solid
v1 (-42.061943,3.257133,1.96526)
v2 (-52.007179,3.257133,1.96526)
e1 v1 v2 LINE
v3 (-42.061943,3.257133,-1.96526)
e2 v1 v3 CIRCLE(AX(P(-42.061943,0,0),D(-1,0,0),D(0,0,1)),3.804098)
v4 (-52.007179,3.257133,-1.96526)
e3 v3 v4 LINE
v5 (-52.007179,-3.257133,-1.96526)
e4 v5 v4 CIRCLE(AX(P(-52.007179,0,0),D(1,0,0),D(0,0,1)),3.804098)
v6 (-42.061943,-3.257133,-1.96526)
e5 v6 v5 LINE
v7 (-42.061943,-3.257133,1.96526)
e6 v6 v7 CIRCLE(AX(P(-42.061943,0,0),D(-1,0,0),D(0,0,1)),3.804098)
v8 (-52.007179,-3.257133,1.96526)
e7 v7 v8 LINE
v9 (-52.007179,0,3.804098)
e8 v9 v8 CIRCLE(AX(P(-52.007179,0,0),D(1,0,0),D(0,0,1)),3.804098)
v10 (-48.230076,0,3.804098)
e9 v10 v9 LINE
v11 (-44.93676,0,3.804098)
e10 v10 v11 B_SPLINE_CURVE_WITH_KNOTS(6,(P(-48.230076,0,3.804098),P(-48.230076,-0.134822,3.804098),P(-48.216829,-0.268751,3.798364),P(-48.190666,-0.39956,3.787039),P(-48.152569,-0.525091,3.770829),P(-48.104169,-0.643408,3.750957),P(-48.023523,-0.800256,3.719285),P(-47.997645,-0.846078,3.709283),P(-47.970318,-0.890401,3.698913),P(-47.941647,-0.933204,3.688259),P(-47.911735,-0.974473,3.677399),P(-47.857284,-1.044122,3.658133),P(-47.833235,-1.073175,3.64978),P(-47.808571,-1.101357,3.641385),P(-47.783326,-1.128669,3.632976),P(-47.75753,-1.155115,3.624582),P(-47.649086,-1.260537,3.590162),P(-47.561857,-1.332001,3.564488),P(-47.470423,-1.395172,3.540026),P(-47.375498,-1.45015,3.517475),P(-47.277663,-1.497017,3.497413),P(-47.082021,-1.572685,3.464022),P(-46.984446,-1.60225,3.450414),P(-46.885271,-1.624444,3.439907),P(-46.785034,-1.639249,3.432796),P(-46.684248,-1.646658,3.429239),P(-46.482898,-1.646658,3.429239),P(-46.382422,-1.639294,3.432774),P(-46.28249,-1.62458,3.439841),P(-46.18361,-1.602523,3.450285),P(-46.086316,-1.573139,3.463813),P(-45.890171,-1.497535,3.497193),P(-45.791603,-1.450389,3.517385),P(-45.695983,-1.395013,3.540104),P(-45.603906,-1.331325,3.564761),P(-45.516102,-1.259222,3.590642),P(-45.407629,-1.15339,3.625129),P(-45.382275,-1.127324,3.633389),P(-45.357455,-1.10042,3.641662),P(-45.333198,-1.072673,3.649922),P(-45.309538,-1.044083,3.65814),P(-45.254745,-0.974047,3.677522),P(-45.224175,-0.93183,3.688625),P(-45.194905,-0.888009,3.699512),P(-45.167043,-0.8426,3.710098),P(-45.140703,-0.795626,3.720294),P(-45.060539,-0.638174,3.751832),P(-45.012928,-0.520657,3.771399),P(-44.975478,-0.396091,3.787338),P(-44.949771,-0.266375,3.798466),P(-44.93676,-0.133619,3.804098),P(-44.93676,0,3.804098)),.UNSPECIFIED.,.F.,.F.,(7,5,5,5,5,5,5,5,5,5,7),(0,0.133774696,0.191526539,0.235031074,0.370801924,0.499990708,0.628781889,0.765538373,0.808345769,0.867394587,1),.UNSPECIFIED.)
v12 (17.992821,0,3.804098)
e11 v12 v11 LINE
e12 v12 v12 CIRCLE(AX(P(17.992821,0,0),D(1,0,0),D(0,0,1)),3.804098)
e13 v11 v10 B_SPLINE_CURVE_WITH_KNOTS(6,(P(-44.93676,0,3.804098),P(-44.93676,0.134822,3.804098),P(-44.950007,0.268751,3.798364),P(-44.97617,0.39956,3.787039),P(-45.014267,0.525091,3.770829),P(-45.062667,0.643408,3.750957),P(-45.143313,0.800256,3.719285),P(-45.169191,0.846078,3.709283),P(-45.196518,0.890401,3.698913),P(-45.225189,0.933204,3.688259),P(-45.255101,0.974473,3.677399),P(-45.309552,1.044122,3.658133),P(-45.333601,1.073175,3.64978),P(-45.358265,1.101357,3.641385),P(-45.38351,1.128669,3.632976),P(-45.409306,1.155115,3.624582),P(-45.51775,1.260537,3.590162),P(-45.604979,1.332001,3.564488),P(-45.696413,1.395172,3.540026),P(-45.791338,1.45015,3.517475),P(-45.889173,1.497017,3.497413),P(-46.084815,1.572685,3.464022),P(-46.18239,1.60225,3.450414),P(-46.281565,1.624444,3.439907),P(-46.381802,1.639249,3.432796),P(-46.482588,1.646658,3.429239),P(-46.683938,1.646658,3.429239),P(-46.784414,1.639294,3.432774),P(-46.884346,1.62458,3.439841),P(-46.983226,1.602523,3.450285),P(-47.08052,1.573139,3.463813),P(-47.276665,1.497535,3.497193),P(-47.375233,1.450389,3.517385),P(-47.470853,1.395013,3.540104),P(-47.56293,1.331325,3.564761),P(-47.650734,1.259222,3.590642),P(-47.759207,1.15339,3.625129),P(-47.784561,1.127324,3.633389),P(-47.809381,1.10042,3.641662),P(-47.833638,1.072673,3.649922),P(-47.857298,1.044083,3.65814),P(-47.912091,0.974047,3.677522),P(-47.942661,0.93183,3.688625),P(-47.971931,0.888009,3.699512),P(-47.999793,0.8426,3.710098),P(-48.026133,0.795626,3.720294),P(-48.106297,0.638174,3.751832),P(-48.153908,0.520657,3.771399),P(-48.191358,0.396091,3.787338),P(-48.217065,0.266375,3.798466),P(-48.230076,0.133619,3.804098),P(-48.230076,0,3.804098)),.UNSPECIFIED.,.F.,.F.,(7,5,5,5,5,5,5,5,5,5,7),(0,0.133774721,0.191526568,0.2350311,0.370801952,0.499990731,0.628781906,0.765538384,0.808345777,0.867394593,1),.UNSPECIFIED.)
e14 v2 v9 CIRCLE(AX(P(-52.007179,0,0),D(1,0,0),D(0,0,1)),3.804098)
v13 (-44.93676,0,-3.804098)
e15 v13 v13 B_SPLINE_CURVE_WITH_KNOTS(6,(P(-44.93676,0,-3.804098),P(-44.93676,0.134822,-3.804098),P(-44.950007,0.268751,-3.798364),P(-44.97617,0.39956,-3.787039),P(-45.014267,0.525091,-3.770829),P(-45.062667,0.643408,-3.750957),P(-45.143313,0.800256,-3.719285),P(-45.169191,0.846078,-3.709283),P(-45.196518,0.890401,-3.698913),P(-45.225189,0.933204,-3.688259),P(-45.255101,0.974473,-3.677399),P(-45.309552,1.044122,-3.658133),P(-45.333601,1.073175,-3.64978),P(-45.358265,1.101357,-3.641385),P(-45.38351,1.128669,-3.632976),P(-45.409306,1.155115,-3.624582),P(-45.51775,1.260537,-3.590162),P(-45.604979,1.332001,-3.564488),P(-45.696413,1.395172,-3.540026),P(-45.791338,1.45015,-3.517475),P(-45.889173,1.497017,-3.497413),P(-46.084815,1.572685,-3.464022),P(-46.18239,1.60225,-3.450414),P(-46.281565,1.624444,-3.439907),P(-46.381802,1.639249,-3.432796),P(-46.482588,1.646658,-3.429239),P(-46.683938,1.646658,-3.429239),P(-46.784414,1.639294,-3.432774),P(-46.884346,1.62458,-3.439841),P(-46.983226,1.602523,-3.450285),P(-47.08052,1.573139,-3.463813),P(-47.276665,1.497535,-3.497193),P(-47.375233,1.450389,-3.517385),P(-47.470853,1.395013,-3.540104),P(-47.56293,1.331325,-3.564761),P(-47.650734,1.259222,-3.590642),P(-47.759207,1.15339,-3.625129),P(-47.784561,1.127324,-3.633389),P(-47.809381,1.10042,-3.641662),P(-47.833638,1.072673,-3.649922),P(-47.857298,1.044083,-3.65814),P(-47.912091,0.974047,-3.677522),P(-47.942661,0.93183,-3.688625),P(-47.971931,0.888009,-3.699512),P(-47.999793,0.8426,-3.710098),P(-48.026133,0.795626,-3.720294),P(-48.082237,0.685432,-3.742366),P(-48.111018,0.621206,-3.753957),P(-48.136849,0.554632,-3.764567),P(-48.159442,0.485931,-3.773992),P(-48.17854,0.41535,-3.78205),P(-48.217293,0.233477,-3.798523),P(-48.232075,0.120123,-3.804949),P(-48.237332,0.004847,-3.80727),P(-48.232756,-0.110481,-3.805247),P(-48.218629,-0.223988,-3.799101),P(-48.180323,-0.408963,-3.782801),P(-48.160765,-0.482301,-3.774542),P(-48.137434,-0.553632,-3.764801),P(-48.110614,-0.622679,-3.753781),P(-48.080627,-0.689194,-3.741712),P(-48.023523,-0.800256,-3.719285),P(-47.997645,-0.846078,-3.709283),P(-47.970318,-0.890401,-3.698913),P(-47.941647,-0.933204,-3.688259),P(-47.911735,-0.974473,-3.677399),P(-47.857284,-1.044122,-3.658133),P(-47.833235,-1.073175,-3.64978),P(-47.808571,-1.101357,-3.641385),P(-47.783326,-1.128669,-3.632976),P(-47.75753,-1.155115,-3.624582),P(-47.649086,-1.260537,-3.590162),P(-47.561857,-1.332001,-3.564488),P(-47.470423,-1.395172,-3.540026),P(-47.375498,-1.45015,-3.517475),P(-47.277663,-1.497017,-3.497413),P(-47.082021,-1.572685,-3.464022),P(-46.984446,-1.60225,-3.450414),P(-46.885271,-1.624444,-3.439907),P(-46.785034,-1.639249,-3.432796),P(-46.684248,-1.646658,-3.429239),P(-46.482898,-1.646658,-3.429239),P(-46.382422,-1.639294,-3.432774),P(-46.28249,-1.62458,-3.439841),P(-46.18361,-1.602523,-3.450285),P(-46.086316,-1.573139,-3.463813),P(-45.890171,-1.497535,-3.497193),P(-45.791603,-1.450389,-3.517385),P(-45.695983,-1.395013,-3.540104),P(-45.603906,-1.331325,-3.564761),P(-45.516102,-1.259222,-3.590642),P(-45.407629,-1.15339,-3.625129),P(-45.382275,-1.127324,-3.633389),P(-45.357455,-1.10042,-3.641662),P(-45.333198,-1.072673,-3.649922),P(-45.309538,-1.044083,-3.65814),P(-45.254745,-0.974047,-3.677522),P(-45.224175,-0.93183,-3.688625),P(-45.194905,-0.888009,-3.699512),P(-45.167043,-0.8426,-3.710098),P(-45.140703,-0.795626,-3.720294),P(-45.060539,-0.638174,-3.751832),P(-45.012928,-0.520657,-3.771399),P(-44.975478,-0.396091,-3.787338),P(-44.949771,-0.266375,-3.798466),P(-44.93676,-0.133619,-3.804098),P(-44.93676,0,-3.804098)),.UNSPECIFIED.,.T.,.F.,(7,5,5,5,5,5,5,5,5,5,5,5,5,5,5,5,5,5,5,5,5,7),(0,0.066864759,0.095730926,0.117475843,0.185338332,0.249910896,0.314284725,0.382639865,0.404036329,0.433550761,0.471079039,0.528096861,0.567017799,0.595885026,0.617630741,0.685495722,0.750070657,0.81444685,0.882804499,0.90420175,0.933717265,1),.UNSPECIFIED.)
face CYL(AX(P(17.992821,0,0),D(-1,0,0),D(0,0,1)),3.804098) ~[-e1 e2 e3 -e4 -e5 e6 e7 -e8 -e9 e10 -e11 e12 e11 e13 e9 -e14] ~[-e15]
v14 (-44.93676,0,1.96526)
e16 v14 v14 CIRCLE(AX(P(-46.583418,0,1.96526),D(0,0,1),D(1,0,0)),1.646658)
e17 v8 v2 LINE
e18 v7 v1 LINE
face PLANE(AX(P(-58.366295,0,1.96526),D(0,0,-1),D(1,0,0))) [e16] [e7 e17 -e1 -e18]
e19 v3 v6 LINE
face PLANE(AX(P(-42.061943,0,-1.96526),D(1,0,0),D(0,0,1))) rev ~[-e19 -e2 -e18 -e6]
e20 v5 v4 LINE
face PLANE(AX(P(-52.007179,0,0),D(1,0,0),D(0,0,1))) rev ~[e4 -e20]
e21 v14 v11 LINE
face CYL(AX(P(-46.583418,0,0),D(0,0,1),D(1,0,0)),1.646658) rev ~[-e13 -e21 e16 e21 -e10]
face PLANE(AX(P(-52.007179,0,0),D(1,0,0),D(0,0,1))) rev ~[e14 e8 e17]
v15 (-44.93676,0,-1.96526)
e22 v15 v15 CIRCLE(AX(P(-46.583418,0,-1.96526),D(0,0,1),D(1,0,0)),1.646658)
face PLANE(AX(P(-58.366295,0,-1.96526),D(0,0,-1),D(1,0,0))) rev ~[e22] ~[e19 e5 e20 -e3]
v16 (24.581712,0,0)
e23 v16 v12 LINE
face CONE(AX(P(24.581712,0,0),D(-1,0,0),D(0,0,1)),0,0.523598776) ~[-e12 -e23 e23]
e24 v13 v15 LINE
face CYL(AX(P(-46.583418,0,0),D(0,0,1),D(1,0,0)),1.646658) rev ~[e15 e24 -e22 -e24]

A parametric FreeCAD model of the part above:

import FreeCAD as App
import Part
import Sketcher

V = App.Vector
Q = App.Units.Quantity


def add_polygon(sketch, points):
    """Adds a closed chain of lines whose ends are joined by coincident constraints."""
    first, n = sketch.GeometryCount, len(points)
    for a, b in zip(points, points[1:] + points[:1]):
        sketch.addGeometry(Part.LineSegment(App.Vector(*a, 0), App.Vector(*b, 0)), False)
    for i in range(n):
        sketch.addConstraint(Sketcher.Constraint("Coincident", first + i, 2, first + (i + 1) % n, 1))

doc = App.newDocument("Part")
body = doc.addObject("PartDesign::Body", "Body")

# Sketch on XZ plane
sketch1 = body.newObject("Sketcher::SketchObject", "Sketch")
sketch1.AttachmentSupport = (doc.getObject("XZ_Plane"), [""])
sketch1.MapMode = "FlatFace"
add_polygon(sketch1, [(-52.007179, 3.804098), (-52.007179, 0), (24.581712, 0), (17.992821, 3.804098)])  # lines 0-3
sketch1.addConstraint([
    Sketcher.Constraint("Vertical", 0),
    Sketcher.Constraint("Horizontal", 1),
    Sketcher.Constraint("Horizontal", 3),
    Sketcher.Constraint("PointOnObject", 0, 2, -1),
    Sketcher.Constraint("DistanceX", 3, 2, 3, 1, 70.0),
    Sketcher.Constraint("Angle", 2, Q("150 deg")),
    Sketcher.Constraint("DistanceY", 0, 2, 0, 1, 3.804098),
    Sketcher.Constraint("DistanceX", 0, 2, -1, 1, 52.007179),
])
revolution = body.newObject("PartDesign::Revolution", "Revolution")
revolution.Profile = sketch1
revolution.ReferenceAxis = (sketch1, ["H_Axis"])
revolution.Angle = 360

# Sketch on XZ plane
sketch2 = body.newObject("Sketcher::SketchObject", "Sketch001")
sketch2.AttachmentSupport = (doc.getObject("XZ_Plane"), [""])
sketch2.MapMode = "FlatFace"
add_polygon(sketch2, [(-58.366295, 1.96526), (-58.366295, -1.96526), (-42.061943, -1.96526), (-42.061943, 1.96526)])  # lines 0-3
sketch2.addConstraint([
    Sketcher.Constraint("Vertical", 0),
    Sketcher.Constraint("Horizontal", 1),
    Sketcher.Constraint("Vertical", 2),
    Sketcher.Constraint("Horizontal", 3),
    Sketcher.Constraint("DistanceX", 1, 1, 1, 2, 16.304351),
    Sketcher.Constraint("DistanceY", 0, 2, 0, 1, 3.93052),
    Sketcher.Constraint("DistanceY", 0, 2, -1, 1, 1.96526),
    Sketcher.Constraint("DistanceX", 0, 2, -1, 1, 58.366295),
])
pocket1 = body.newObject("PartDesign::Pocket", "Pocket")
pocket1.Profile = sketch2
pocket1.Length = 50.8
pocket1.Midplane = True

# Sketch on XY plane
sketch3 = body.newObject("Sketcher::SketchObject", "Sketch002")
sketch3.AttachmentSupport = (doc.getObject("XY_Plane"), [""])
sketch3.MapMode = "FlatFace"
sketch3.addGeometry(Part.Circle(V(-46.583418, 0, 0), V(0, 0, 1), 1.646658), False)
sketch3.addConstraint([
    Sketcher.Constraint("PointOnObject", 0, 3, -1),
    Sketcher.Constraint("Diameter", 0, 3.293316),
    Sketcher.Constraint("DistanceX", 0, 3, -1, 1, 46.583418),
])
pocket2 = body.newObject("PartDesign::Pocket", "Pocket001")
pocket2.Profile = sketch3
pocket2.Length = 50.8
pocket2.Midplane = True

doc.recompute()
